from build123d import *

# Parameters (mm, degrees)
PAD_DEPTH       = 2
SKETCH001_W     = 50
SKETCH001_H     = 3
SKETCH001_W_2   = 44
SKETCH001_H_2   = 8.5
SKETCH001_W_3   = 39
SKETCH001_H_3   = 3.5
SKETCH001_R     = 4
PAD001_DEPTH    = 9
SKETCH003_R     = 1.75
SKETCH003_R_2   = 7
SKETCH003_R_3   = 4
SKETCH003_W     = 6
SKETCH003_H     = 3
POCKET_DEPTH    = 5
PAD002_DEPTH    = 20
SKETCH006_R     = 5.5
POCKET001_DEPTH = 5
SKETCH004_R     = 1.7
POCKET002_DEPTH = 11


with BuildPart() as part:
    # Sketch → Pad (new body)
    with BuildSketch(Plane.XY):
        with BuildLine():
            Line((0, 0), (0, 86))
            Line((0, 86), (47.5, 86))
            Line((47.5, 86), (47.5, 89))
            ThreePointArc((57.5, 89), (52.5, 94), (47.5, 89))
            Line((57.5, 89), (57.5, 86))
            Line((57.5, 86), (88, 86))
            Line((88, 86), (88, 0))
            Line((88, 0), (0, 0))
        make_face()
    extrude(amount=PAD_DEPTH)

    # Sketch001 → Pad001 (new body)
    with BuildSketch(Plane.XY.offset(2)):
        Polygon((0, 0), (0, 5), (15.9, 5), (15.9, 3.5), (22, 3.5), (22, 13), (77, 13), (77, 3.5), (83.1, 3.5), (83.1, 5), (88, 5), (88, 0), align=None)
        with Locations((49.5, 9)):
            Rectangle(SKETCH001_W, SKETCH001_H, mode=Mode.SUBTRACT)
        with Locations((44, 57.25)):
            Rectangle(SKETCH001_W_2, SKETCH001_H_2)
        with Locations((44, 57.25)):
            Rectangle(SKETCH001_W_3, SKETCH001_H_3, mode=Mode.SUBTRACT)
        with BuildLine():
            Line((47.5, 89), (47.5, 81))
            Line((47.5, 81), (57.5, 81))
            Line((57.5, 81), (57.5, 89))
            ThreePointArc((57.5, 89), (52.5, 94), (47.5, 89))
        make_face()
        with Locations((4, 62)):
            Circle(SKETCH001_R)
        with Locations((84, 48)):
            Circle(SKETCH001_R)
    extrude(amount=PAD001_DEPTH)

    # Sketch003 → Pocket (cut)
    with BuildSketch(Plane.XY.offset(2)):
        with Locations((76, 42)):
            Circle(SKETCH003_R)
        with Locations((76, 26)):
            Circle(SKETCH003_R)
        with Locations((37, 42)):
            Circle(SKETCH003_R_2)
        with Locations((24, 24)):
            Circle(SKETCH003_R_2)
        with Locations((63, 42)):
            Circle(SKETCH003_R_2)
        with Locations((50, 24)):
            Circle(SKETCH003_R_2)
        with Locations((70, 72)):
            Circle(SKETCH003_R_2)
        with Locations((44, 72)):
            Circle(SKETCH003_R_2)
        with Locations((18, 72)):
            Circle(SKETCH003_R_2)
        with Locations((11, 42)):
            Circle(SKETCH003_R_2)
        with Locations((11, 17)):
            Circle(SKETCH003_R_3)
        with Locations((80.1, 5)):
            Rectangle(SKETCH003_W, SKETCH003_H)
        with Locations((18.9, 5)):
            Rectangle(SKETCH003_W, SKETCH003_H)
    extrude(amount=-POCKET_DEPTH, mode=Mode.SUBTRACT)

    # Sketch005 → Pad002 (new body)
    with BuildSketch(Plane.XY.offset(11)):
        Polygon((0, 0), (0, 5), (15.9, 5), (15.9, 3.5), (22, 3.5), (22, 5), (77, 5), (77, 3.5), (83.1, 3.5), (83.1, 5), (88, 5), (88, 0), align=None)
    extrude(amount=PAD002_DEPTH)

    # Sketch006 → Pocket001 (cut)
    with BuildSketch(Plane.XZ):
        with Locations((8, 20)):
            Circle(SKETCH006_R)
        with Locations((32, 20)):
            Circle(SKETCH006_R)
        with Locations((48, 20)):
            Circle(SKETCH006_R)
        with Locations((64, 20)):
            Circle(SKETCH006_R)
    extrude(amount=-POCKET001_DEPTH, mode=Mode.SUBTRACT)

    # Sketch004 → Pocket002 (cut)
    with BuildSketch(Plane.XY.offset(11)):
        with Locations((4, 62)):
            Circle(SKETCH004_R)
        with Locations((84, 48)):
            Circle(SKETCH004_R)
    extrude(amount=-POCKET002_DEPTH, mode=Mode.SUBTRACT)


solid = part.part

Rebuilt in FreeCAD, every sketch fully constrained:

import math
import FreeCAD as App
import Part
import Sketcher

V = App.Vector
Q = App.Units.Quantity

doc = App.newDocument("Part")
body = doc.addObject("PartDesign::Body", "Body")

sketch1 = body.newObject("Sketcher::SketchObject", "Sketch")
sketch1.AttachmentSupport = (doc.getObject("XY_Plane"), [""])
sketch1.MapMode = "FlatFace"
sketch1.addGeometry([
    Part.LineSegment(V(0, 86, 0), V(0, 0, 0)),
    Part.LineSegment(V(0, 0, 0), V(88, 0, 0)),
    Part.LineSegment(V(88, 0, 0), V(88, 86, 0)),
    Part.LineSegment(V(88, 86, 0), V(57.5, 86, 0)),
    Part.LineSegment(V(57.5, 86, 0), V(57.5, 89, 0)),
    Part.ArcOfCircle(Part.Circle(V(52.5, 89, 0), V(0, 0, 1), 5), math.radians(0), math.radians(180)),
    Part.LineSegment(V(47.5, 89, 0), V(47.5, 86, 0)),
    Part.LineSegment(V(47.5, 86, 0), V(0, 86, 0)),
], False)
sketch1.addConstraint([
    Sketcher.Constraint("Coincident", 0, 2, 1, 1),
    Sketcher.Constraint("Coincident", 1, 2, 2, 1),
    Sketcher.Constraint("Coincident", 2, 2, 3, 1),
    Sketcher.Constraint("Coincident", 3, 2, 4, 1),
    Sketcher.Constraint("Tangent", 4, 2, 5, 1),
    Sketcher.Constraint("Tangent", 5, 2, 6, 1),
    Sketcher.Constraint("Coincident", 6, 2, 7, 1),
    Sketcher.Constraint("Coincident", 7, 2, 0, 1),
    Sketcher.Constraint("Vertical", 0),
    Sketcher.Constraint("Horizontal", 1),
    Sketcher.Constraint("Vertical", 2),
    Sketcher.Constraint("Horizontal", 3),
    Sketcher.Constraint("Vertical", 4),
    Sketcher.Constraint("Vertical", 6),
    Sketcher.Constraint("Horizontal", 7),
    Sketcher.Constraint("Coincident", 0, 2, -1, 1),
    Sketcher.Constraint("Horizontal", 3, 2, 6, 2),
    Sketcher.Constraint("Radius", 5, Q("5 mm")),
    Sketcher.Constraint("DistanceX", 1, 1, 1, 2, Q("88 mm")),
    Sketcher.Constraint("DistanceY", 0, 2, 0, 1, Q("86 mm")),
    Sketcher.Constraint("DistanceY", 4, 1, 4, 2, Q("3 mm")),
    Sketcher.Constraint("DistanceX", 3, 2, 3, 1, Q("30.5 mm")),
])
pad1 = body.newObject("PartDesign::Pad", "Pad")
pad1.Profile = sketch1
pad1.Length = 2

sketch2 = body.newObject("Sketcher::SketchObject", "Sketch001")
sketch2.AttachmentSupport = (doc.getObject("XY_Plane"), [""])
sketch2.MapMode = "FlatFace"
sketch2.AttachmentOffset = App.Placement(V(0, 0, 2), App.Rotation())
sketch2.addGeometry([
    Part.LineSegment(V(0, 5, 0), V(0, 0, 0)),
    Part.LineSegment(V(0, 0, 0), V(88, 0, 0)),
    Part.LineSegment(V(88, 0, 0), V(88, 5, 0)),
    Part.LineSegment(V(88, 5, 0), V(83.1, 5, 0)),
    Part.LineSegment(V(83.1, 5, 0), V(83.1, 3.5, 0)),
    Part.LineSegment(V(83.1, 3.5, 0), V(77, 3.5, 0)),
    Part.LineSegment(V(77, 3.5, 0), V(77, 13, 0)),
    Part.LineSegment(V(77, 13, 0), V(22, 13, 0)),
    Part.LineSegment(V(22, 13, 0), V(22, 3.5, 0)),
    Part.LineSegment(V(22, 3.5, 0), V(15.9, 3.5, 0)),
    Part.LineSegment(V(15.9, 3.5, 0), V(15.9, 5, 0)),
    Part.LineSegment(V(15.9, 5, 0), V(0, 5, 0)),
    Part.LineSegment(V(24.5, 7.5, 0), V(24.5, 10.5, 0)),
    Part.LineSegment(V(24.5, 10.5, 0), V(74.5, 10.5, 0)),
    Part.LineSegment(V(74.5, 10.5, 0), V(74.5, 7.5, 0)),
    Part.LineSegment(V(74.5, 7.5, 0), V(24.5, 7.5, 0)),
    Part.LineSegment(V(22, 61.5, 0), V(22, 53, 0)),
    Part.LineSegment(V(22, 53, 0), V(66, 53, 0)),
    Part.LineSegment(V(66, 53, 0), V(66, 61.5, 0)),
    Part.LineSegment(V(66, 61.5, 0), V(22, 61.5, 0)),
    Part.LineSegment(V(63.5, 55.5, 0), V(24.5, 55.5, 0)),
    Part.LineSegment(V(24.5, 55.5, 0), V(24.5, 59, 0)),
    Part.LineSegment(V(24.5, 59, 0), V(63.5, 59, 0)),
    Part.LineSegment(V(63.5, 59, 0), V(63.5, 55.5, 0)),
    Part.LineSegment(V(47.5, 89, 0), V(47.5, 81, 0)),
    Part.LineSegment(V(47.5, 81, 0), V(57.5, 81, 0)),
    Part.LineSegment(V(57.5, 81, 0), V(57.5, 89, 0)),
    Part.ArcOfCircle(Part.Circle(V(52.5, 89, 0), V(0, 0, 1), 5), math.radians(0), math.radians(180)),
    Part.Circle(V(4, 62, 0), V(0, 0, 1), 4),
    Part.Circle(V(84, 48, 0), V(0, 0, 1), 4),
], False)
sketch2.addConstraint([
    Sketcher.Constraint("Coincident", 0, 2, 1, 1),
    Sketcher.Constraint("Coincident", 1, 2, 2, 1),
    Sketcher.Constraint("Coincident", 2, 2, 3, 1),
    Sketcher.Constraint("Coincident", 3, 2, 4, 1),
    Sketcher.Constraint("Coincident", 4, 2, 5, 1),
    Sketcher.Constraint("Coincident", 5, 2, 6, 1),
    Sketcher.Constraint("Coincident", 6, 2, 7, 1),
    Sketcher.Constraint("Coincident", 7, 2, 8, 1),
    Sketcher.Constraint("Coincident", 8, 2, 9, 1),
    Sketcher.Constraint("Coincident", 9, 2, 10, 1),
    Sketcher.Constraint("Coincident", 10, 2, 11, 1),
    Sketcher.Constraint("Coincident", 11, 2, 0, 1),
    Sketcher.Constraint("Coincident", 12, 2, 13, 1),
    Sketcher.Constraint("Coincident", 13, 2, 14, 1),
    Sketcher.Constraint("Coincident", 14, 2, 15, 1),
    Sketcher.Constraint("Coincident", 15, 2, 12, 1),
    Sketcher.Constraint("Coincident", 16, 2, 17, 1),
    Sketcher.Constraint("Coincident", 17, 2, 18, 1),
    Sketcher.Constraint("Coincident", 18, 2, 19, 1),
    Sketcher.Constraint("Coincident", 19, 2, 16, 1),
    Sketcher.Constraint("Coincident", 20, 2, 21, 1),
    Sketcher.Constraint("Coincident", 21, 2, 22, 1),
    Sketcher.Constraint("Coincident", 22, 2, 23, 1),
    Sketcher.Constraint("Coincident", 23, 2, 20, 1),
    Sketcher.Constraint("Coincident", 24, 2, 25, 1),
    Sketcher.Constraint("Coincident", 25, 2, 26, 1),
    Sketcher.Constraint("Tangent", 26, 2, 27, 1),
    Sketcher.Constraint("Tangent", 27, 2, 24, 1),
    Sketcher.Constraint("Vertical", 0),
    Sketcher.Constraint("Horizontal", 1),
    Sketcher.Constraint("Vertical", 2),
    Sketcher.Constraint("Horizontal", 3),
    Sketcher.Constraint("Vertical", 4),
    Sketcher.Constraint("Horizontal", 5),
    Sketcher.Constraint("Vertical", 6),
    Sketcher.Constraint("Horizontal", 7),
    Sketcher.Constraint("Vertical", 8),
    Sketcher.Constraint("Horizontal", 9),
    Sketcher.Constraint("Vertical", 10),
    Sketcher.Constraint("Horizontal", 11),
    Sketcher.Constraint("Vertical", 12),
    Sketcher.Constraint("Horizontal", 13),
    Sketcher.Constraint("Vertical", 14),
    Sketcher.Constraint("Horizontal", 15),
    Sketcher.Constraint("Vertical", 16),
    Sketcher.Constraint("Horizontal", 17),
    Sketcher.Constraint("Vertical", 18),
    Sketcher.Constraint("Horizontal", 19),
    Sketcher.Constraint("Horizontal", 20),
    Sketcher.Constraint("Vertical", 21),
    Sketcher.Constraint("Horizontal", 22),
    Sketcher.Constraint("Vertical", 23),
    Sketcher.Constraint("Vertical", 24),
    Sketcher.Constraint("Horizontal", 25),
    Sketcher.Constraint("Vertical", 26),
    Sketcher.Constraint("Coincident", 0, 2, -1, 1),
    Sketcher.Constraint("Equal", 28, 29),
    Sketcher.Constraint("Horizontal", 5, 2, 8, 2),
    Sketcher.Constraint("Horizontal", 3, 2, 10, 2),
    Sketcher.Constraint("Vertical", 8, 2, 16, 2),
    Sketcher.Constraint("Vertical", 15, 2, 20, 2),
    Sketcher.Constraint("Equal", 5, 9),
    Sketcher.Constraint("Diameter", 28, Q("8 mm")),
    Sketcher.Constraint("Radius", 27, Q("5 mm")),
    Sketcher.Constraint("DistanceX", 1, 1, 1, 2, Q("88 mm")),
    Sketcher.Constraint("DistanceX", 7, 2, 7, 1, Q("55 mm")),
    Sketcher.Constraint("DistanceX", 13, 1, 13, 2, Q("50 mm")),
    Sketcher.Constraint("DistanceX", 17, 1, 17, 2, Q("44 mm")),
    Sketcher.Constraint("DistanceX", 20, 2, 20, 1, Q("39 mm")),
    Sketcher.Constraint("DistanceY", 0, 2, 0, 1, Q("5 mm")),
    Sketcher.Constraint("DistanceY", 12, 1, 12, 2, Q("3 mm")),
    Sketcher.Constraint("DistanceY", 24, 2, 24, 1, Q("8 mm")),
    Sketcher.Constraint("DistanceX", 3, 2, 3, 1, Q("4.9 mm")),
    Sketcher.Constraint("DistanceX", 5, 2, 5, 1, Q("6.1 mm")),
    Sketcher.Constraint("DistanceY", 4, 2, 4, 1, Q("1.5 mm")),
    Sketcher.Constraint("DistanceY", 6, 1, 6, 2, Q("9.5 mm")),
    Sketcher.Constraint("DistanceY", 16, 2, 16, 1, Q("8.5 mm")),
    Sketcher.Constraint("DistanceY", 21, 1, 21, 2, Q("3.5 mm")),
    Sketcher.Constraint("DistanceY", -1, 1, 27, 3, Q("89 mm")),
    Sketcher.Constraint("DistanceX", -1, 1, 28, 3, Q("4 mm")),
    Sketcher.Constraint("DistanceY", -1, 1, 28, 3, Q("62 mm")),
    Sketcher.Constraint("DistanceX", -1, 1, 29, 3, Q("84 mm")),
    Sketcher.Constraint("DistanceY", -1, 1, 29, 3, Q("48 mm")),
    Sketcher.Constraint("DistanceY", -1, 1, 16, 2, Q("53 mm")),
    Sketcher.Constraint("DistanceY", -1, 1, 21, 2, Q("59 mm")),
    Sketcher.Constraint("DistanceY", 8, 2, 12, 2, Q("7 mm")),
    Sketcher.Constraint("DistanceX", 21, 2, 27, 3, Q("28 mm")),
    Sketcher.Constraint("DistanceX", -1, 1, 27, 3, Q("52.5 mm")),
])
pad2 = body.newObject("PartDesign::Pad", "Pad001")
pad2.Profile = sketch2
pad2.Length = 9

sketch3 = body.newObject("Sketcher::SketchObject", "Sketch002")
sketch3.AttachmentSupport = (doc.getObject("XY_Plane"), [""])
sketch3.MapMode = "FlatFace"
sketch3.AttachmentOffset = App.Placement(V(0, 0, 2), App.Rotation())
sketch3.addGeometry([
    Part.Circle(V(76, 42, 0), V(0, 0, 1), 1.8),
    Part.Circle(V(76, 26, 0), V(0, 0, 1), 1.8),
    Part.Circle(V(37, 42, 0), V(0, 0, 1), 7),
    Part.Circle(V(24, 24, 0), V(0, 0, 1), 7),
    Part.Circle(V(63, 42, 0), V(0, 0, 1), 7),
    Part.Circle(V(50, 24, 0), V(0, 0, 1), 7),
    Part.Circle(V(70, 72, 0), V(0, 0, 1), 7),
    Part.Circle(V(44, 72, 0), V(0, 0, 1), 7),
    Part.Circle(V(18, 72, 0), V(0, 0, 1), 7),
    Part.Circle(V(11, 42, 0), V(0, 0, 1), 7),
    Part.Circle(V(11, 17, 0), V(0, 0, 1), 4),
    Part.LineSegment(V(77.1, 6.5, 0), V(77.1, 3.5, 0)),
    Part.LineSegment(V(77.1, 3.5, 0), V(83.1, 3.5, 0)),
    Part.LineSegment(V(83.1, 3.5, 0), V(83.1, 6.5, 0)),
    Part.LineSegment(V(83.1, 6.5, 0), V(77.1, 6.5, 0)),
    Part.LineSegment(V(15.9, 6.5, 0), V(15.9, 3.5, 0)),
    Part.LineSegment(V(15.9, 3.5, 0), V(21.9, 3.5, 0)),
    Part.LineSegment(V(21.9, 3.5, 0), V(21.9, 6.5, 0)),
    Part.LineSegment(V(21.9, 6.5, 0), V(15.9, 6.5, 0)),
], False)
sketch3.addConstraint([
    Sketcher.Constraint("Coincident", 11, 2, 12, 1),
    Sketcher.Constraint("Coincident", 12, 2, 13, 1),
    Sketcher.Constraint("Coincident", 13, 2, 14, 1),
    Sketcher.Constraint("Coincident", 14, 2, 11, 1),
    Sketcher.Constraint("Coincident", 15, 2, 16, 1),
    Sketcher.Constraint("Coincident", 16, 2, 17, 1),
    Sketcher.Constraint("Coincident", 17, 2, 18, 1),
    Sketcher.Constraint("Coincident", 18, 2, 15, 1),
    Sketcher.Constraint("Vertical", 11),
    Sketcher.Constraint("Horizontal", 12),
    Sketcher.Constraint("Vertical", 13),
    Sketcher.Constraint("Horizontal", 14),
    Sketcher.Constraint("Vertical", 15),
    Sketcher.Constraint("Horizontal", 16),
    Sketcher.Constraint("Vertical", 17),
    Sketcher.Constraint("Horizontal", 18),
    Sketcher.Constraint("Equal", 0, 1),
    Sketcher.Constraint("Equal", 2, 3),
    Sketcher.Constraint("Equal", 3, 4),
    Sketcher.Constraint("Equal", 4, 5),
    Sketcher.Constraint("Equal", 5, 6),
    Sketcher.Constraint("Equal", 6, 7),
    Sketcher.Constraint("Equal", 7, 8),
    Sketcher.Constraint("Equal", 8, 9),
    Sketcher.Constraint("Horizontal", 0, 3, 2, 3),
    Sketcher.Constraint("Horizontal", 2, 3, 4, 3),
    Sketcher.Constraint("Horizontal", 3, 3, 5, 3),
    Sketcher.Constraint("Horizontal", 6, 3, 7, 3),
    Sketcher.Constraint("Horizontal", 7, 3, 8, 3),
    Sketcher.Constraint("Horizontal", 4, 3, 9, 3),
    Sketcher.Constraint("Horizontal", 12, 2, 15, 2),
    Sketcher.Constraint("Horizontal", 14, 2, 17, 2),
    Sketcher.Constraint("Vertical", 0, 3, 1, 3),
    Sketcher.Constraint("Vertical", 9, 3, 10, 3),
    Sketcher.Constraint("Equal", 14, 16),
    Sketcher.Constraint("Diameter", 2, Q("14 mm")),
    Sketcher.Constraint("Diameter", 10, Q("8 mm")),
    Sketcher.Constraint("Diameter", 0, Q("3.5 mm")),
    Sketcher.Constraint("DistanceX", 12, 1, 12, 2, Q("6 mm")),
    Sketcher.Constraint("DistanceY", 11, 2, 11, 1, Q("3 mm")),
    Sketcher.Constraint("DistanceX", -1, 1, 0, 3, Q("76 mm")),
    Sketcher.Constraint("DistanceY", -1, 1, 0, 3, Q("42 mm")),
    Sketcher.Constraint("DistanceY", -1, 1, 1, 3, Q("26 mm")),
    Sketcher.Constraint("DistanceX", -1, 1, 2, 3, Q("37 mm")),
    Sketcher.Constraint("DistanceX", -1, 1, 3, 3, Q("24 mm")),
    Sketcher.Constraint("DistanceY", -1, 1, 3, 3, Q("24 mm")),
    Sketcher.Constraint("DistanceX", -1, 1, 4, 3, Q("63 mm")),
    Sketcher.Constraint("DistanceX", -1, 1, 5, 3, Q("50 mm")),
    Sketcher.Constraint("DistanceX", -1, 1, 6, 3, Q("70 mm")),
    Sketcher.Constraint("DistanceY", -1, 1, 6, 3, Q("72 mm")),
    Sketcher.Constraint("DistanceX", -1, 1, 7, 3, Q("44 mm")),
    Sketcher.Constraint("DistanceX", -1, 1, 8, 3, Q("18 mm")),
    Sketcher.Constraint("DistanceX", -1, 1, 9, 3, Q("11 mm")),
    Sketcher.Constraint("DistanceY", -1, 1, 10, 3, Q("17 mm")),
    Sketcher.Constraint("DistanceX", -1, 1, 11, 2, Q("77.1 mm")),
    Sketcher.Constraint("DistanceY", -1, 1, 11, 2, Q("3.5 mm")),
    Sketcher.Constraint("DistanceX", -1, 1, 15, 2, Q("15.9 mm")),
])
pocket1 = body.newObject("PartDesign::Pocket", "Pocket")
pocket1.Profile = sketch3
pocket1.Length = 5

sketch4 = body.newObject("Sketcher::SketchObject", "Sketch003")
sketch4.AttachmentSupport = (doc.getObject("XY_Plane"), [""])
sketch4.MapMode = "FlatFace"
sketch4.AttachmentOffset = App.Placement(V(0, 0, 11), App.Rotation())
sketch4.addGeometry([
    Part.LineSegment(V(0, 5, 0), V(0, 0, 0)),
    Part.LineSegment(V(0, 0, 0), V(88, 0, 0)),
    Part.LineSegment(V(88, 0, 0), V(88, 5, 0)),
    Part.LineSegment(V(88, 5, 0), V(83.1, 5, 0)),
    Part.LineSegment(V(83.1, 5, 0), V(83.1, 3.5, 0)),
    Part.LineSegment(V(83.1, 3.5, 0), V(77, 3.5, 0)),
    Part.LineSegment(V(77, 3.5, 0), V(77, 5, 0)),
    Part.LineSegment(V(77, 5, 0), V(22, 5, 0)),
    Part.LineSegment(V(22, 5, 0), V(22, 3.5, 0)),
    Part.LineSegment(V(22, 3.5, 0), V(15.9, 3.5, 0)),
    Part.LineSegment(V(15.9, 3.5, 0), V(15.9, 5, 0)),
    Part.LineSegment(V(15.9, 5, 0), V(0, 5, 0)),
], False)
sketch4.addConstraint([
    Sketcher.Constraint("Coincident", 0, 2, 1, 1),
    Sketcher.Constraint("Coincident", 1, 2, 2, 1),
    Sketcher.Constraint("Coincident", 2, 2, 3, 1),
    Sketcher.Constraint("Coincident", 3, 2, 4, 1),
    Sketcher.Constraint("Coincident", 4, 2, 5, 1),
    Sketcher.Constraint("Coincident", 5, 2, 6, 1),
    Sketcher.Constraint("Coincident", 6, 2, 7, 1),
    Sketcher.Constraint("Coincident", 7, 2, 8, 1),
    Sketcher.Constraint("Coincident", 8, 2, 9, 1),
    Sketcher.Constraint("Coincident", 9, 2, 10, 1),
    Sketcher.Constraint("Coincident", 10, 2, 11, 1),
    Sketcher.Constraint("Coincident", 11, 2, 0, 1),
    Sketcher.Constraint("Vertical", 0),
    Sketcher.Constraint("Horizontal", 1),
    Sketcher.Constraint("Vertical", 2),
    Sketcher.Constraint("Horizontal", 3),
    Sketcher.Constraint("Vertical", 4),
    Sketcher.Constraint("Horizontal", 5),
    Sketcher.Constraint("Vertical", 6),
    Sketcher.Constraint("Horizontal", 7),
    Sketcher.Constraint("Vertical", 8),
    Sketcher.Constraint("Horizontal", 9),
    Sketcher.Constraint("Vertical", 10),
    Sketcher.Constraint("Horizontal", 11),
    Sketcher.Constraint("Coincident", 0, 2, -1, 1),
    Sketcher.Constraint("Horizontal", 3, 2, 6, 2),
    Sketcher.Constraint("Horizontal", 5, 2, 8, 2),
    Sketcher.Constraint("Horizontal", 7, 2, 10, 2),
    Sketcher.Constraint("Equal", 5, 9),
    Sketcher.Constraint("DistanceX", 1, 1, 1, 2, Q("88 mm")),
    Sketcher.Constraint("DistanceX", 7, 2, 7, 1, Q("55 mm")),
    Sketcher.Constraint("DistanceY", 0, 2, 0, 1, Q("5 mm")),
    Sketcher.Constraint("DistanceX", 3, 2, 3, 1, Q("4.9 mm")),
    Sketcher.Constraint("DistanceX", 5, 2, 5, 1, Q("6.1 mm")),
    Sketcher.Constraint("DistanceY", 4, 2, 4, 1, Q("1.5 mm")),
])
pad3 = body.newObject("PartDesign::Pad", "Pad002")
pad3.Profile = sketch4
pad3.Length = 20

sketch5 = body.newObject("Sketcher::SketchObject", "Sketch004")
sketch5.AttachmentSupport = (doc.getObject("XZ_Plane"), [""])
sketch5.MapMode = "FlatFace"
sketch5.addGeometry([
    Part.Circle(V(8, 20, 0), V(0, 0, 1), 6),
    Part.Circle(V(32, 20, 0), V(0, 0, 1), 6),
    Part.Circle(V(48, 20, 0), V(0, 0, 1), 6),
    Part.Circle(V(64, 20, 0), V(0, 0, 1), 6),
], False)
sketch5.addConstraint([
    Sketcher.Constraint("Equal", 0, 1),
    Sketcher.Constraint("Equal", 1, 2),
    Sketcher.Constraint("Equal", 2, 3),
    Sketcher.Constraint("Horizontal", 0, 3, 1, 3),
    Sketcher.Constraint("Horizontal", 1, 3, 2, 3),
    Sketcher.Constraint("Horizontal", 2, 3, 3, 3),
    Sketcher.Constraint("Diameter", 0, Q("11 mm")),
    Sketcher.Constraint("DistanceX", -1, 1, 0, 3, Q("8 mm")),
    Sketcher.Constraint("DistanceY", -1, 1, 0, 3, Q("20 mm")),
    Sketcher.Constraint("DistanceX", -1, 1, 1, 3, Q("32 mm")),
    Sketcher.Constraint("DistanceX", -1, 1, 2, 3, Q("48 mm")),
    Sketcher.Constraint("DistanceX", -1, 1, 3, 3, Q("64 mm")),
])
pocket2 = body.newObject("PartDesign::Pocket", "Pocket001")
pocket2.Profile = sketch5
pocket2.Length = 5

sketch6 = body.newObject("Sketcher::SketchObject", "Sketch005")
sketch6.AttachmentSupport = (doc.getObject("XY_Plane"), [""])
sketch6.MapMode = "FlatFace"
sketch6.AttachmentOffset = App.Placement(V(0, 0, 11), App.Rotation())
sketch6.addGeometry([
    Part.Circle(V(4, 62, 0), V(0, 0, 1), 1.7),
    Part.Circle(V(84, 48, 0), V(0, 0, 1), 1.7),
], False)
sketch6.addConstraint([
    Sketcher.Constraint("Equal", 0, 1),
    Sketcher.Constraint("Diameter", 0, Q("3.4 mm")),
    Sketcher.Constraint("DistanceX", -1, 1, 0, 3, Q("4 mm")),
    Sketcher.Constraint("DistanceY", -1, 1, 0, 3, Q("62 mm")),
    Sketcher.Constraint("DistanceX", -1, 1, 1, 3, Q("84 mm")),
    Sketcher.Constraint("DistanceY", -1, 1, 1, 3, Q("48 mm")),
])
pocket3 = body.newObject("PartDesign::Pocket", "Pocket002")
pocket3.Profile = sketch6
pocket3.Length = 11

doc.recompute()
